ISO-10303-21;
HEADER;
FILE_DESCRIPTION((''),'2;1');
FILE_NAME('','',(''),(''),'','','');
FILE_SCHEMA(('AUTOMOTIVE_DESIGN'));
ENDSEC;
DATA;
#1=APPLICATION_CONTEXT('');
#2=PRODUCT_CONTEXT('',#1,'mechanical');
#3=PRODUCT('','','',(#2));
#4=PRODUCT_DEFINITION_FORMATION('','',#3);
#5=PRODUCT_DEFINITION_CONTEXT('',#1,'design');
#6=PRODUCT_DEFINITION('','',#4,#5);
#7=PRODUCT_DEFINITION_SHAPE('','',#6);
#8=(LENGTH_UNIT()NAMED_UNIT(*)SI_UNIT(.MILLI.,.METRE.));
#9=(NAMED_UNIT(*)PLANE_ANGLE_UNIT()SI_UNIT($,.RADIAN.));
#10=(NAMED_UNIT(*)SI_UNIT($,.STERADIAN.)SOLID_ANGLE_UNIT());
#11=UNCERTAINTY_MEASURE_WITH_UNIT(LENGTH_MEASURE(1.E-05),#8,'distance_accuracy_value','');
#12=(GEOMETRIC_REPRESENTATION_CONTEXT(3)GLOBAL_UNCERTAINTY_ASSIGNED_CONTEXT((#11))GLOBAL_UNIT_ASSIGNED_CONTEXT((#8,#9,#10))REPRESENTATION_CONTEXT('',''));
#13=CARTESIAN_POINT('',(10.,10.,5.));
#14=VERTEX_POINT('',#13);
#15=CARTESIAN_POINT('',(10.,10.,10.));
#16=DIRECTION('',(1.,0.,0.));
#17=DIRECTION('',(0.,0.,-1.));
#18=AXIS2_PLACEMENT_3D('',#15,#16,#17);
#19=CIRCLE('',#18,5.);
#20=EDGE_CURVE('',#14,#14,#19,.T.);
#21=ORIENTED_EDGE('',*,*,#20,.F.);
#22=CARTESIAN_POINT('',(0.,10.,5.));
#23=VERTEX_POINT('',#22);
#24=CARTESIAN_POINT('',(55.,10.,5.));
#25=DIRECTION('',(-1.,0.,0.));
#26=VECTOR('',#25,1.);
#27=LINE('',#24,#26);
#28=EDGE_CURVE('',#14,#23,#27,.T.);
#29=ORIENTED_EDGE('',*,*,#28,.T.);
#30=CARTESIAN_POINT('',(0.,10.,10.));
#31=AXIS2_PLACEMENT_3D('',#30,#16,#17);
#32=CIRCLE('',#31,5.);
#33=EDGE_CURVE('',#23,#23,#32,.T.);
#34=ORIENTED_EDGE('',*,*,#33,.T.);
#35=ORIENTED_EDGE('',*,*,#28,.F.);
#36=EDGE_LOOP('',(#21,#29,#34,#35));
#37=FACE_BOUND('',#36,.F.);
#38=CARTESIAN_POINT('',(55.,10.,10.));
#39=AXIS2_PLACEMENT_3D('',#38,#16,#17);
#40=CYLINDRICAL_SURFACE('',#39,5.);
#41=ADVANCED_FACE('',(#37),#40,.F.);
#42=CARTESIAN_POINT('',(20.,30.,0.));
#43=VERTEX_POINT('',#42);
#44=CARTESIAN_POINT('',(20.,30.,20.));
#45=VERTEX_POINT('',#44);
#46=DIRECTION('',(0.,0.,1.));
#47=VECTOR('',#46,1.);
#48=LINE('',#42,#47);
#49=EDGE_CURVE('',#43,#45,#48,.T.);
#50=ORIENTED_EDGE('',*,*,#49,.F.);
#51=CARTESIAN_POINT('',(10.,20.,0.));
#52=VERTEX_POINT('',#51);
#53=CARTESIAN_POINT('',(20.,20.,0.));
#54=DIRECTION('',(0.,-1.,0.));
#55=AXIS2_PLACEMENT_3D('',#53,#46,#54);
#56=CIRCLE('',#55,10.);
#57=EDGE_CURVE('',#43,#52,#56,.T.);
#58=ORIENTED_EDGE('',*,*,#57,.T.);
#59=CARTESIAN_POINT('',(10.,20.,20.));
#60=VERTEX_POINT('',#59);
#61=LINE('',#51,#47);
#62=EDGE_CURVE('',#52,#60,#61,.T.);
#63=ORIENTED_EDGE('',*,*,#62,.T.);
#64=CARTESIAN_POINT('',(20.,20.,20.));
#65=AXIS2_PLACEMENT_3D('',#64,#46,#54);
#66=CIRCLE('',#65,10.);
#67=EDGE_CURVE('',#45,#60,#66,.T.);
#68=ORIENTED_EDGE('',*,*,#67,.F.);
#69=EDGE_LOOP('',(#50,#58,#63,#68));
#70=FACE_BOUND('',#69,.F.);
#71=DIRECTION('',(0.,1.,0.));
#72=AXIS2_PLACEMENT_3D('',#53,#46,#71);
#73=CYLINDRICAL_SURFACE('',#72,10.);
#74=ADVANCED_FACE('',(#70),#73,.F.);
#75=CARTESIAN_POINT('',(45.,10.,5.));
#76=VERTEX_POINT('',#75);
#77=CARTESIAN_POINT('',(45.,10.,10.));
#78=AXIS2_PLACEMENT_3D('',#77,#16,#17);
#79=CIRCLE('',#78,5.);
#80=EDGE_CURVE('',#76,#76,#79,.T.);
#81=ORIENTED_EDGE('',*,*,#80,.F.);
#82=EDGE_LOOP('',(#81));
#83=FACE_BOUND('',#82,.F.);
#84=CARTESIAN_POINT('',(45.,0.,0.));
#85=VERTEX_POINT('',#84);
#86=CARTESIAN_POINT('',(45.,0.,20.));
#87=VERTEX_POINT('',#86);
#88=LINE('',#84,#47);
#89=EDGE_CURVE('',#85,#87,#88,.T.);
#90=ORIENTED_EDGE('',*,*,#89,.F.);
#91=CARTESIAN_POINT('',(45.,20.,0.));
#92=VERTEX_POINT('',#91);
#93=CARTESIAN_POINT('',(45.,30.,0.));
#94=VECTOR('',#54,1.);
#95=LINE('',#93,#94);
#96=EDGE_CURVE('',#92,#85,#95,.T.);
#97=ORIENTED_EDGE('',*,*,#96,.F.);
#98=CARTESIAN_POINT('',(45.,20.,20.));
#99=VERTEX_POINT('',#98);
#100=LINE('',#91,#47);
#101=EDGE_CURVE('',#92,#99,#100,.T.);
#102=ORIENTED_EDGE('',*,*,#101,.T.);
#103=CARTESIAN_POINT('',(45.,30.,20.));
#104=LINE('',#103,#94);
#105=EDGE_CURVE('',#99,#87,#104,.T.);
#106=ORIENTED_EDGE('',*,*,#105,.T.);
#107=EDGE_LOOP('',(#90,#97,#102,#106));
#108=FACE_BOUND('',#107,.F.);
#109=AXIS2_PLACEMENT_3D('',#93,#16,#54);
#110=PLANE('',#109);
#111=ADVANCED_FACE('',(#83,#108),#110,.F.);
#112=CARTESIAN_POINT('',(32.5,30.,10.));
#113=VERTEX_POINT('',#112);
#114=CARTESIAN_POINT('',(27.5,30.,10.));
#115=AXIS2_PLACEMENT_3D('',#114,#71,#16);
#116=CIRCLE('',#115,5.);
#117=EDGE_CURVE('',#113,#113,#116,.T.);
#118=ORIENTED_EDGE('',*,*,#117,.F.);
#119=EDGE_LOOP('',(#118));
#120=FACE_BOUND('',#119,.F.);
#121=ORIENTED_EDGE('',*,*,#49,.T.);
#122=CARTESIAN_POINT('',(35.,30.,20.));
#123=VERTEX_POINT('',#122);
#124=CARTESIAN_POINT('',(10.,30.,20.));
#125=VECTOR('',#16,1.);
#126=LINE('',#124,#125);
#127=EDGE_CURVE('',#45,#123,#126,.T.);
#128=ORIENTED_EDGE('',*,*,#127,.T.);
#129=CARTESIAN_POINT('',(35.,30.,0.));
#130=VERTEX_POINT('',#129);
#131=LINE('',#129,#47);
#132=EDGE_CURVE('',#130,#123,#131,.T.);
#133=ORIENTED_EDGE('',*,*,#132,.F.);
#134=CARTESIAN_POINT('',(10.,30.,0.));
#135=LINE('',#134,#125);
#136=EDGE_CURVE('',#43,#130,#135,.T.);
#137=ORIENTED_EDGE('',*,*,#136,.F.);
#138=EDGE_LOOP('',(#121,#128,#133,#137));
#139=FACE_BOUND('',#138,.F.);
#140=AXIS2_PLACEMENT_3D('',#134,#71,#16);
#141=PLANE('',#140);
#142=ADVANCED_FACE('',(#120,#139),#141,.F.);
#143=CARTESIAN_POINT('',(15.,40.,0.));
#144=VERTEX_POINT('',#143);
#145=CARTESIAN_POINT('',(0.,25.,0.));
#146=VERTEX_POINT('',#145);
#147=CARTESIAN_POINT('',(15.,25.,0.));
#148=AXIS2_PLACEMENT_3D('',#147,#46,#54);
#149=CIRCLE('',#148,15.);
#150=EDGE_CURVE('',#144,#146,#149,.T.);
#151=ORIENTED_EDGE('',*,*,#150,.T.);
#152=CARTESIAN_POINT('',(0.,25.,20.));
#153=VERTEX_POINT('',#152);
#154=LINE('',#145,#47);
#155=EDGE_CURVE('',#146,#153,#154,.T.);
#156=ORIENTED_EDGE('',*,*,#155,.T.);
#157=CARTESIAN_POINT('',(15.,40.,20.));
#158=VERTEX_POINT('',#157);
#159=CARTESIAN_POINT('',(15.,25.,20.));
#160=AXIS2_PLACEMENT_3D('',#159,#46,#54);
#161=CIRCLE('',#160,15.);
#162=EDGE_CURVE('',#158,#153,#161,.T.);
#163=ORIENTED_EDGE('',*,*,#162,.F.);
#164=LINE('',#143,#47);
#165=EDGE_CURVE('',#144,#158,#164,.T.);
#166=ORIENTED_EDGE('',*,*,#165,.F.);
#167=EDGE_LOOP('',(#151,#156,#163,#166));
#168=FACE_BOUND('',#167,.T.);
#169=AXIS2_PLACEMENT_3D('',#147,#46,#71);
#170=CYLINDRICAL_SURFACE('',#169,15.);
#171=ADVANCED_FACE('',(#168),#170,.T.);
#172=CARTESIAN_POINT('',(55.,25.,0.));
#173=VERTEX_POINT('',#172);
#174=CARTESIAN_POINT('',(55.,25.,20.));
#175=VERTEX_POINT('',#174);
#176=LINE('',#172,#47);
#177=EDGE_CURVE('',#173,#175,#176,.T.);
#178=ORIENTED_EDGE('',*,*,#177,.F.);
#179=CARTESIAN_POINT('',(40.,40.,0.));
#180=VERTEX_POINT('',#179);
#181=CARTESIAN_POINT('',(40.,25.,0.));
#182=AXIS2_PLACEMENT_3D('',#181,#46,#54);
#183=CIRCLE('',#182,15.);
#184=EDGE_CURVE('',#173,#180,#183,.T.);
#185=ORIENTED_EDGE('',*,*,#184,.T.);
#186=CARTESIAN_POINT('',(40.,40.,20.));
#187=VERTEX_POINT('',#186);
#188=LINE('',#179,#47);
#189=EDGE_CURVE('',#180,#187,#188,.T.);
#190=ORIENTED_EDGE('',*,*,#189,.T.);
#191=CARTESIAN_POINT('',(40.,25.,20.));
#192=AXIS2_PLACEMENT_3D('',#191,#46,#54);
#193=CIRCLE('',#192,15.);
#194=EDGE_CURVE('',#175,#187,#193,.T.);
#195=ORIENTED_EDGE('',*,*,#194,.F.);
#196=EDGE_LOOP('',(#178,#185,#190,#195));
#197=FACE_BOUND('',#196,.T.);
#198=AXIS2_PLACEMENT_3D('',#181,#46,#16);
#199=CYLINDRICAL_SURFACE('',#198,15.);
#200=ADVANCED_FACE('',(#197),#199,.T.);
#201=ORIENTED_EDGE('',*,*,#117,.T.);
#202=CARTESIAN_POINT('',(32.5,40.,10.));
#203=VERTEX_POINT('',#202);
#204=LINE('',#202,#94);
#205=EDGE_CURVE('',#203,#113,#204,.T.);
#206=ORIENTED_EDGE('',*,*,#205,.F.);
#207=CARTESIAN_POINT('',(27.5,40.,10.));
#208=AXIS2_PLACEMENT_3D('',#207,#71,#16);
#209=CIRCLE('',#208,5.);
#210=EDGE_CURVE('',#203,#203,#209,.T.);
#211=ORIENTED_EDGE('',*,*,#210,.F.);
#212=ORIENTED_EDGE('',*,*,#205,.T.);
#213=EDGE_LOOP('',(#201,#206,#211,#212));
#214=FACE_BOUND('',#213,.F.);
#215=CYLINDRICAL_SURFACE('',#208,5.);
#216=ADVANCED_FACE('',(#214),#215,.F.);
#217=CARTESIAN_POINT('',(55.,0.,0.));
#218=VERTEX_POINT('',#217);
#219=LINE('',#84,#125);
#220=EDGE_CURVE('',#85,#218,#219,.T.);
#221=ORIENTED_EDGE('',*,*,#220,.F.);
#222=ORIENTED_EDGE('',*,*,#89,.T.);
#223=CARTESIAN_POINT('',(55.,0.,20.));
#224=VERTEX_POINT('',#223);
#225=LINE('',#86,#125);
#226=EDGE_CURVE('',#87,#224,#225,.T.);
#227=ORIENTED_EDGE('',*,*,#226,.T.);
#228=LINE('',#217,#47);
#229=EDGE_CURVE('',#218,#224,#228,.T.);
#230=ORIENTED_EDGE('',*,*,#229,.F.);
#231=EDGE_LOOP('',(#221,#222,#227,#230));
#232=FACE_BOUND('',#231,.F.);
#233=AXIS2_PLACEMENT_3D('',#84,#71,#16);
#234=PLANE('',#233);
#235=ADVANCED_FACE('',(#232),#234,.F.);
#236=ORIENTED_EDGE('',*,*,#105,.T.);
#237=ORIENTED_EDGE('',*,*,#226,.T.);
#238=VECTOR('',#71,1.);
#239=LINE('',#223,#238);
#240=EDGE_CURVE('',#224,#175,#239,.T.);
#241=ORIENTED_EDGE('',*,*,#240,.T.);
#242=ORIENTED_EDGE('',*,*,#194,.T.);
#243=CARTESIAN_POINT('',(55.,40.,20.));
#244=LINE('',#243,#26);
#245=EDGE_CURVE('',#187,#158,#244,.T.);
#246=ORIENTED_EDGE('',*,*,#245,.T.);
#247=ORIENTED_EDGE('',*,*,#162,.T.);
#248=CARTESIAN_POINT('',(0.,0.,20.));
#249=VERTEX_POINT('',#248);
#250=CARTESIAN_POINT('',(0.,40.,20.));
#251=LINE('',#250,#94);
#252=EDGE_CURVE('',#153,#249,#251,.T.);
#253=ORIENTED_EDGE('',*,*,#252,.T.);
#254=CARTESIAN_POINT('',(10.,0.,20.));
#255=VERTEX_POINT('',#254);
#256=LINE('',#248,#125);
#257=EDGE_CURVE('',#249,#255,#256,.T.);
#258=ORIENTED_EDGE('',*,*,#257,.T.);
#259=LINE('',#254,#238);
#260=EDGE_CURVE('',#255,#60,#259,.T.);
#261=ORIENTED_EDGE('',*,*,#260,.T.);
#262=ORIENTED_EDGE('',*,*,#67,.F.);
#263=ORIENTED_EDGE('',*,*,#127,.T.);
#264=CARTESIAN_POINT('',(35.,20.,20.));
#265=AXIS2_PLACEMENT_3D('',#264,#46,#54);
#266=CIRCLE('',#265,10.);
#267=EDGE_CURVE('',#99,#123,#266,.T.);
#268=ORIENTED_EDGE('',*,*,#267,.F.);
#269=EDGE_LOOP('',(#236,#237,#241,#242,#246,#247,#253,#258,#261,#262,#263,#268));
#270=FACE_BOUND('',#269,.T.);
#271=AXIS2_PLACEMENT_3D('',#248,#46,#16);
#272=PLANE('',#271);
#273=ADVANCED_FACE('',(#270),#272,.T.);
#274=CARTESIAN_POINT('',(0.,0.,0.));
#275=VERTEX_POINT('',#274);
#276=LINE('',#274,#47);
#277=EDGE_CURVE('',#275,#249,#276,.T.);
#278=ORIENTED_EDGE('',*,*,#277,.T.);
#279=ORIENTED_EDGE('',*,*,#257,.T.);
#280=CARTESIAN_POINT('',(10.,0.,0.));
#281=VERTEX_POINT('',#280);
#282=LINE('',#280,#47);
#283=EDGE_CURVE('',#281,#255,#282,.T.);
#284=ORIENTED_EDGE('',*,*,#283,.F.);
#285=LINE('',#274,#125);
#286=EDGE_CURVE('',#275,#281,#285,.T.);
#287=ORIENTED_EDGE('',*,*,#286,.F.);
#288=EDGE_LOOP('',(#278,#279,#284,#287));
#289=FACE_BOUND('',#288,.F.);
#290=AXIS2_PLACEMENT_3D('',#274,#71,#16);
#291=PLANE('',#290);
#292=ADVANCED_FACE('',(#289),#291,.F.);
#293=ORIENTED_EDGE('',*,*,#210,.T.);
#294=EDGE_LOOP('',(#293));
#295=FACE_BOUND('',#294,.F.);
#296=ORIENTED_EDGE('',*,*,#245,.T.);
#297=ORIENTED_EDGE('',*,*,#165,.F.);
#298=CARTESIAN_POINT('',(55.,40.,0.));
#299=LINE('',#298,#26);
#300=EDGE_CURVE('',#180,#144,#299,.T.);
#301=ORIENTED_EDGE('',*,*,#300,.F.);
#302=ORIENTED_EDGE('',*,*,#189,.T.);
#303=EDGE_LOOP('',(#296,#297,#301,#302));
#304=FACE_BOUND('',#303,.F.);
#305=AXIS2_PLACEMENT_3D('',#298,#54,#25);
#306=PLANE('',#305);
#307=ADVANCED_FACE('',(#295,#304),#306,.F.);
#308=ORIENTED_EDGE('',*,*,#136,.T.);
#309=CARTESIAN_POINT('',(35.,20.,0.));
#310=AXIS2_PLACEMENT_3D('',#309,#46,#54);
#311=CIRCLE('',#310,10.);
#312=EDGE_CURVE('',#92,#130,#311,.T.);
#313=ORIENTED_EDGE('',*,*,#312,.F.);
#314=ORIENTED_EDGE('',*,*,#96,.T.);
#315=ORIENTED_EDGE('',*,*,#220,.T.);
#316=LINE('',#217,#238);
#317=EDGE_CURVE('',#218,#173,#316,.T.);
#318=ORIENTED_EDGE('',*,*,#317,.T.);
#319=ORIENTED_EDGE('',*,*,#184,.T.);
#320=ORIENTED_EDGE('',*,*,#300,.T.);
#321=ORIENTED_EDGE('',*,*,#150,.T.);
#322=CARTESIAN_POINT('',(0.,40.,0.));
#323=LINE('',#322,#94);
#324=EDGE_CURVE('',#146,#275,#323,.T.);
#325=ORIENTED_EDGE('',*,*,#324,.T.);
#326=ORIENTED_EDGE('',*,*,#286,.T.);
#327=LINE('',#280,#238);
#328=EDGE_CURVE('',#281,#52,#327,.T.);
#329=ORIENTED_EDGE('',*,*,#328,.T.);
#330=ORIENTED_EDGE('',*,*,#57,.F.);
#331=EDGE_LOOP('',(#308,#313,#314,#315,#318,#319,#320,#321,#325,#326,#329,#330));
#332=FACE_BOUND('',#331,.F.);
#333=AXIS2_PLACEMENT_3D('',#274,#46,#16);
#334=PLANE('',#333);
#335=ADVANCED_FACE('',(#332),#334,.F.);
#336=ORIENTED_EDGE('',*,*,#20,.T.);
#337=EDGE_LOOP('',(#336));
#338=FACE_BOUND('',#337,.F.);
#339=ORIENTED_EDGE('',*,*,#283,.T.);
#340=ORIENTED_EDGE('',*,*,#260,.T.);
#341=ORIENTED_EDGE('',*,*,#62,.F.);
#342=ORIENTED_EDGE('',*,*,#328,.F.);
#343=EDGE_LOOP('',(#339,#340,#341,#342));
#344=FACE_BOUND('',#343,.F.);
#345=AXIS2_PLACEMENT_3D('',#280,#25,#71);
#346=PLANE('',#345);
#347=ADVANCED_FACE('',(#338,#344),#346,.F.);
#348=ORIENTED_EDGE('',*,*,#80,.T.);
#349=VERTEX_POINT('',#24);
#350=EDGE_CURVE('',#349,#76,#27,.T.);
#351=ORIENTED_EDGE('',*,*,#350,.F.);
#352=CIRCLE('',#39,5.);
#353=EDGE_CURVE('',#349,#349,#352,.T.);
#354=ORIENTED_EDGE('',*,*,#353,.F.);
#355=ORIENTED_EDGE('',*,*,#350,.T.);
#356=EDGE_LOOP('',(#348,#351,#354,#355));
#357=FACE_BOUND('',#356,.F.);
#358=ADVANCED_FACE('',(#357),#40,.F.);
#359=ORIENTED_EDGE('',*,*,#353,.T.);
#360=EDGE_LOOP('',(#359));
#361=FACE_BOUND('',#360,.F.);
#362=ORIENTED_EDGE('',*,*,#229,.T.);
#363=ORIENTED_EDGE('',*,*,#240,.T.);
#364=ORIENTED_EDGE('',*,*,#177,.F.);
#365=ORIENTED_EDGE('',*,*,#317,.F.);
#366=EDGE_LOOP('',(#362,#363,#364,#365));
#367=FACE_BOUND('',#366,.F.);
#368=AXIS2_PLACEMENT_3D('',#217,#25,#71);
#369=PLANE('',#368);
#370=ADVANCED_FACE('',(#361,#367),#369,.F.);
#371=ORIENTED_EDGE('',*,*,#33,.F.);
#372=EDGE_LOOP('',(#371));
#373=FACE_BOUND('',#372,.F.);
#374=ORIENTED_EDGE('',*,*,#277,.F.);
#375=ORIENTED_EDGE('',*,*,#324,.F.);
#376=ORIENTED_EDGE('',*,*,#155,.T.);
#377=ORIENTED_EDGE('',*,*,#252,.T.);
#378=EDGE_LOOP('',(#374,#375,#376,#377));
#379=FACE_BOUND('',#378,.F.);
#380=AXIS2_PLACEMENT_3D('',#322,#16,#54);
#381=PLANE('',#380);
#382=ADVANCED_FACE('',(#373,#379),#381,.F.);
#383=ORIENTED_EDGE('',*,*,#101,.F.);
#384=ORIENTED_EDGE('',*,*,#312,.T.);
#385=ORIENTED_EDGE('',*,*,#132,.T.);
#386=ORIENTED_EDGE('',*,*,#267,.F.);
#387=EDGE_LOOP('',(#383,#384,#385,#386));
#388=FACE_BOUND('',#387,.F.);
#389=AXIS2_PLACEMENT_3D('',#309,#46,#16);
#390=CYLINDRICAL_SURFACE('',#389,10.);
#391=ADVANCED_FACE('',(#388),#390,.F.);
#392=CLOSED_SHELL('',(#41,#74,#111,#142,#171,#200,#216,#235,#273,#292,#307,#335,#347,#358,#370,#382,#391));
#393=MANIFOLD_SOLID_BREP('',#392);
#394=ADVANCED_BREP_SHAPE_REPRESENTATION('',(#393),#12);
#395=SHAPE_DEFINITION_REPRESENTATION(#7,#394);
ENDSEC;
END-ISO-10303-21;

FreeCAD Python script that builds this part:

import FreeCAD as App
import Part
import Sketcher
from FreeCAD import Vector
Q = App.Units.Quantity


def edges_at(feature, points):
    """Names of the edges that pass closest to the given points."""
    edges = feature.Shape.Edges
    near = lambda p: min(range(len(edges)), key=lambda i: edges[i].distToShape(Part.Vertex(*p))[0])
    return sorted({f"Edge{near(p) + 1}" for p in points})


def add_polygon(sketch, points):
    """Adds a closed chain of lines whose ends are joined by coincident constraints."""
    first, n = sketch.GeometryCount, len(points)
    for a, b in zip(points, points[1:] + points[:1]):
        sketch.addGeometry(Part.LineSegment(App.Vector(*a, 0), App.Vector(*b, 0)), False)
    for i in range(n):
        sketch.addConstraint(Sketcher.Constraint("Coincident", first + i, 2, first + (i + 1) % n, 1))

doc = App.newDocument("Part")
body = doc.addObject("PartDesign::Body", "Body")

# Sketch on XY plane
sketch1 = body.newObject("Sketcher::SketchObject", "Sketch")
sketch1.AttachmentSupport = (doc.getObject("XY_Plane"), [""])
sketch1.MapMode = "FlatFace"
add_polygon(sketch1, [(0, 40), (0, 0), (10, 0), (10, 30), (45, 30), (45, 0), (55, 0), (55, 40)])  # lines 0-7
sketch1.addConstraint(Sketcher.Constraint("Vertical", 0))
sketch1.addConstraint(Sketcher.Constraint("Horizontal", 1))
sketch1.addConstraint(Sketcher.Constraint("Vertical", 2))
sketch1.addConstraint(Sketcher.Constraint("Horizontal", 3))
sketch1.addConstraint(Sketcher.Constraint("Vertical", 4))
sketch1.addConstraint(Sketcher.Constraint("Horizontal", 5))
sketch1.addConstraint(Sketcher.Constraint("Vertical", 6))
sketch1.addConstraint(Sketcher.Constraint("Horizontal", 7))
sketch1.addConstraint(Sketcher.Constraint("Coincident", 0, 2, -1, 1))
sketch1.addConstraint(Sketcher.Constraint("PointOnObject", 4, 2, -1))
sketch1.addConstraint(Sketcher.Constraint("Equal", 1, 5))
sketch1.addConstraint(Sketcher.Constraint("DistanceX", 1, 1, 1, 2, Q("10 mm")))
sketch1.addConstraint(Sketcher.Constraint("DistanceX", 3, 1, 3, 2, Q("35 mm")))
sketch1.addConstraint(Sketcher.Constraint("DistanceY", 0, 2, 0, 1, Q("40 mm")))
sketch1.addConstraint(Sketcher.Constraint("DistanceY", 3, 2, 6, 2, Q("10 mm")))
pad1 = body.newObject("PartDesign::Pad", "Pad")
pad1.Profile = sketch1
pad1.Length = 20

# Sketch on YZ plane
sketch2 = body.newObject("Sketcher::SketchObject", "Sketch001")
sketch2.AttachmentSupport = (doc.getObject("YZ_Plane"), [""])
sketch2.MapMode = "FlatFace"
sketch2.AttachmentOffset = App.Placement(Vector(0, 0, 55), App.Rotation())
sketch2.addGeometry(Part.Circle(Vector(10, 10, 0), Vector(0, 0, 1), 5), False)
sketch2.addConstraint(Sketcher.Constraint("Diameter", 0, Q("10 mm")))
sketch2.addConstraint(Sketcher.Constraint("DistanceX", -1, 1, 0, 3, Q("10 mm")))
sketch2.addConstraint(Sketcher.Constraint("DistanceY", -1, 1, 0, 3, Q("10 mm")))
pocket1 = body.newObject("PartDesign::Pocket", "Pocket")
pocket1.Profile = sketch2
pocket1.Type = "ThroughAll"

# Sketch on XZ plane
sketch3 = body.newObject("Sketcher::SketchObject", "Sketch002")
sketch3.AttachmentSupport = (doc.getObject("XZ_Plane"), [""])
sketch3.MapMode = "FlatFace"
sketch3.AttachmentOffset = App.Placement(Vector(0, 0, -40), App.Rotation())
sketch3.addGeometry(Part.Circle(Vector(27.5, 10, 0), Vector(0, 0, 1), 5), False)
sketch3.addConstraint(Sketcher.Constraint("Diameter", 0, Q("10 mm")))
sketch3.addConstraint(Sketcher.Constraint("DistanceY", -1, 1, 0, 3, Q("10 mm")))
sketch3.addConstraint(Sketcher.Constraint("DistanceX", -1, 1, 0, 3, Q("27.5 mm")))
pocket2 = body.newObject("PartDesign::Pocket", "Pocket001")
pocket2.Profile = sketch3
pocket2.Type = "UpToFirst"
pocket2.Reversed = True
doc.recompute()

fillet = body.newObject("PartDesign::Fillet", "Fillet")
fillet.Base = (pocket2, edges_at(pocket2, [(10, 30, 10), (45, 30, 10)]))
fillet.Radius = 10
doc.recompute()

fillet2 = body.newObject("PartDesign::Fillet", "Fillet001")
fillet2.Base = (fillet, edges_at(fillet, [(0, 40, 10), (55, 40, 10)]))
fillet2.Radius = 15

doc.recompute()
